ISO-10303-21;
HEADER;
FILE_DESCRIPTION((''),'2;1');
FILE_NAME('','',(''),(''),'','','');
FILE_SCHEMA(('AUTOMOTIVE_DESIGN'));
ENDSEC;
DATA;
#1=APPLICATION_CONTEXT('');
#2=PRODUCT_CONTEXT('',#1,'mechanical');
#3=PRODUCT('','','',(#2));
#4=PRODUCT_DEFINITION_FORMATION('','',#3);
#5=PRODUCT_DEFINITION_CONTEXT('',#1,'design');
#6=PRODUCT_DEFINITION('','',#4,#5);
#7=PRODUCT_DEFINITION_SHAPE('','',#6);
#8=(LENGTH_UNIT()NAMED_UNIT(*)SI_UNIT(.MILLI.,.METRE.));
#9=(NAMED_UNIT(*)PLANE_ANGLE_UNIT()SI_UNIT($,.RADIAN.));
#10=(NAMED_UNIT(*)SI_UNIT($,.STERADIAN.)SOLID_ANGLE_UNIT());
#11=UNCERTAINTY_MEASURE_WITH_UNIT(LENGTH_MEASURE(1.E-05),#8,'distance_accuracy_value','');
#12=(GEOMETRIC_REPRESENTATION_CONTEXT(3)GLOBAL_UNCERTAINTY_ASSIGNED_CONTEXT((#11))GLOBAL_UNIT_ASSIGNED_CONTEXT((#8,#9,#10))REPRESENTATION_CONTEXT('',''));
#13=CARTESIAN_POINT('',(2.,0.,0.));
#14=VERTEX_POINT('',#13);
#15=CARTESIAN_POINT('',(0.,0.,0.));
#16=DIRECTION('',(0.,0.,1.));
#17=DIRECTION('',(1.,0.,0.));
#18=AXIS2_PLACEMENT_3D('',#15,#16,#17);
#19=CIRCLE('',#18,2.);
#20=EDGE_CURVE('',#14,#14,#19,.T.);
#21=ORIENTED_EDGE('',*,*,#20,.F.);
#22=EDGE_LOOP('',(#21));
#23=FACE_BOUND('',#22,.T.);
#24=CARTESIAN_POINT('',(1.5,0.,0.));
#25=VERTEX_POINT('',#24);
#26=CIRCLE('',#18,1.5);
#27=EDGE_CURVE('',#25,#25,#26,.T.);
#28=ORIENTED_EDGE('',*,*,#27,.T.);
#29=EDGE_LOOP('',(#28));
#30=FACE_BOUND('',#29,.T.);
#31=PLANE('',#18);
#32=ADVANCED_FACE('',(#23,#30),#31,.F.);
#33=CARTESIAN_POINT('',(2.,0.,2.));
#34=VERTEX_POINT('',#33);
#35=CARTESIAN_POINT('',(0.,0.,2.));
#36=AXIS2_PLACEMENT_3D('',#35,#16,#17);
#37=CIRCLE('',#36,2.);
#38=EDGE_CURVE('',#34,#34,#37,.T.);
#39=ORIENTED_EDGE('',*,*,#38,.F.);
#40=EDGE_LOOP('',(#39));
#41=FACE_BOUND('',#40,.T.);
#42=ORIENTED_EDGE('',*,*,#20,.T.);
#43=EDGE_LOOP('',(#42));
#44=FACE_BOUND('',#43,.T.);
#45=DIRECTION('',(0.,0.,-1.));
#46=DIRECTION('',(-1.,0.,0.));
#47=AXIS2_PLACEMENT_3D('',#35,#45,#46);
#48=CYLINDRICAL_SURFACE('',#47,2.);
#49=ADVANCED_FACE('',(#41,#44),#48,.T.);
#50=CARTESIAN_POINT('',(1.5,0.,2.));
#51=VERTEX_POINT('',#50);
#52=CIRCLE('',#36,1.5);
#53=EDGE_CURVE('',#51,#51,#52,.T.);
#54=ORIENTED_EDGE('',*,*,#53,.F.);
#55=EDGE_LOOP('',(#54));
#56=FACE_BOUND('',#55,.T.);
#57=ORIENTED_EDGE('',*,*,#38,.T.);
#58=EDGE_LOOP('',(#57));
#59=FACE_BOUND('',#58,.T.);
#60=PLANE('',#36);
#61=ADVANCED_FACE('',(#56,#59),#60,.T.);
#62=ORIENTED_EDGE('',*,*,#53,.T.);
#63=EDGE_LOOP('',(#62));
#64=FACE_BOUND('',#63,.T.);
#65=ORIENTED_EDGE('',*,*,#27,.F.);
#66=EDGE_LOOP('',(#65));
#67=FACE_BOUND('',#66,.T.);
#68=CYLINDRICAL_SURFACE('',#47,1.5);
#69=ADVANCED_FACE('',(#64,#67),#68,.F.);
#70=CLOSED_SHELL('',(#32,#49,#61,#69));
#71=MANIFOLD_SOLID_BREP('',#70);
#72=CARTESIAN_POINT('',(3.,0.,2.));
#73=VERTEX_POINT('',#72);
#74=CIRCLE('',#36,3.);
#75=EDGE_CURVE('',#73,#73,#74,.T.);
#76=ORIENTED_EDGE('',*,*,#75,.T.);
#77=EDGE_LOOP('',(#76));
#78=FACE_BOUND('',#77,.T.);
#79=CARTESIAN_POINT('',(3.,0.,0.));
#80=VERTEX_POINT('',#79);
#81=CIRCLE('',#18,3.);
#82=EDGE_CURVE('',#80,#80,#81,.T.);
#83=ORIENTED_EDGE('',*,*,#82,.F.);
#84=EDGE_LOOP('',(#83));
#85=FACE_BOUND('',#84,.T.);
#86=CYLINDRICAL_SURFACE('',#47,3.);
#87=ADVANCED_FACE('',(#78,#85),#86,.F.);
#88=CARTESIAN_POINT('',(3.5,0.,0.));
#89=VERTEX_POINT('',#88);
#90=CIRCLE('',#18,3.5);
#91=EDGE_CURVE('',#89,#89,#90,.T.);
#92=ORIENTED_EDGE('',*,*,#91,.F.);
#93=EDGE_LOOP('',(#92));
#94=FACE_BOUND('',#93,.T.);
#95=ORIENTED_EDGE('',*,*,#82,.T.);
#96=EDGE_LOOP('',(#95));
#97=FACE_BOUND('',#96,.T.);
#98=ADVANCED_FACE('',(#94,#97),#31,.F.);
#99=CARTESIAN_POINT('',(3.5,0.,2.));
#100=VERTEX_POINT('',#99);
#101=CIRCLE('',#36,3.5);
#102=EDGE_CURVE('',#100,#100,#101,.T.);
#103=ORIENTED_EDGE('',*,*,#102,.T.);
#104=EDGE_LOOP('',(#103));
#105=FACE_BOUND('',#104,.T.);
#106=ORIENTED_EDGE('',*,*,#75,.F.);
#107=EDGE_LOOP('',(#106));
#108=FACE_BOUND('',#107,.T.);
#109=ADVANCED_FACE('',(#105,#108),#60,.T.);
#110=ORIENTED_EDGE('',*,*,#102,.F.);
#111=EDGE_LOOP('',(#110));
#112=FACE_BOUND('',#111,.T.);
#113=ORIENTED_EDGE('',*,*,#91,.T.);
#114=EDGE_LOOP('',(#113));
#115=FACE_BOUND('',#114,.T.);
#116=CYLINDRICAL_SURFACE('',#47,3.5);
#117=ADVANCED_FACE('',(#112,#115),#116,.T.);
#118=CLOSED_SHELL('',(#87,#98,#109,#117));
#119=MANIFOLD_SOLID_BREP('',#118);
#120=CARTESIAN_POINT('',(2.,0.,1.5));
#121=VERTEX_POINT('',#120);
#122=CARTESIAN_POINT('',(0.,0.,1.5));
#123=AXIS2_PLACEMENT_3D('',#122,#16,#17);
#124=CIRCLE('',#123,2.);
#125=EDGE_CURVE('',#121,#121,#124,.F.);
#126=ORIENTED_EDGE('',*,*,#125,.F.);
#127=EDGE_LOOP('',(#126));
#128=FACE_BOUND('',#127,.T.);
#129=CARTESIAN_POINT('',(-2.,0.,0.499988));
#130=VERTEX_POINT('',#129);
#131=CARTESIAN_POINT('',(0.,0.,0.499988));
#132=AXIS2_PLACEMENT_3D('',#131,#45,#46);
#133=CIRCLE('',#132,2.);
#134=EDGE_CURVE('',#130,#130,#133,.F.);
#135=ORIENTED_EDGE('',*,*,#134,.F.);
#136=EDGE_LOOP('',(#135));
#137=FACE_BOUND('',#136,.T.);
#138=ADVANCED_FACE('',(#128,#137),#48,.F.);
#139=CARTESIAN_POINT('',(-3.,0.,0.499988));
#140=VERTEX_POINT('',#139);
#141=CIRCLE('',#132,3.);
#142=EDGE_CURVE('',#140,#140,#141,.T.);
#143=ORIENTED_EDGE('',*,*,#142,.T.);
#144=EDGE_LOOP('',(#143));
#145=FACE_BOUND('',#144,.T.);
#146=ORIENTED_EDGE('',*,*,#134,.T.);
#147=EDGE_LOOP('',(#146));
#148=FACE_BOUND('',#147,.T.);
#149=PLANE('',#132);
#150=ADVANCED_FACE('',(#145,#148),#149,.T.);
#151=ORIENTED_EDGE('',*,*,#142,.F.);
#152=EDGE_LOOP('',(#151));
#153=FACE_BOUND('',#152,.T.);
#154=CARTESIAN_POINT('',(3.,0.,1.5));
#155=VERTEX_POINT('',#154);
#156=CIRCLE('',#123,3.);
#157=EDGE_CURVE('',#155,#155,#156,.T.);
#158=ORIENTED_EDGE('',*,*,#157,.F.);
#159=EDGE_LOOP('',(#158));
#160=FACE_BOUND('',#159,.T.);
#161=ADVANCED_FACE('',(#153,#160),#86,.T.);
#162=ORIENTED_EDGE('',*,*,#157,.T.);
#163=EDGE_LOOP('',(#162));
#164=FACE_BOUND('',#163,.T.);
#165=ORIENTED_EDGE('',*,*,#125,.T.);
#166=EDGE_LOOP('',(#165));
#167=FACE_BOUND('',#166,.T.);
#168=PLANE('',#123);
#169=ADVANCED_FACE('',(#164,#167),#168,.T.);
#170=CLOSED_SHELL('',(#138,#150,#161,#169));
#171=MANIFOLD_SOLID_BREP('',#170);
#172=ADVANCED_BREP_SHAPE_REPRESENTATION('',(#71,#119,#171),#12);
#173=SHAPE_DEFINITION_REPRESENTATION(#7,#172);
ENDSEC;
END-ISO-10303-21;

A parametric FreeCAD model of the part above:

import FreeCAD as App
import Part
import Sketcher
Q = App.Units.Quantity

doc = App.newDocument("Part")
body = doc.addObject("PartDesign::Body", "Body")

# Sketch on XY plane
sketch1 = doc.addObject("Sketcher::SketchObject", "Sketch")
body.addObject(sketch1)
sketch1.AttachmentSupport = (doc.XY_Plane, [""])
sketch1.MapMode = "FlatFace"
sketch1.addGeometry([
    Part.Circle(App.Vector(0, 0, 0), App.Vector(0, 0, 1), 3.5),
    Part.Circle(App.Vector(0, 0, 0), App.Vector(0, 0, 1), 3),
], False)
sketch1.addConstraint([
    Sketcher.Constraint("Coincident", 0, 3, -1, 1),
    Sketcher.Constraint("Coincident", 1, 3, -1, 1),
    Sketcher.Constraint("Diameter", 0, Q("7 mm")),
    Sketcher.Constraint("Diameter", 1, Q("6 mm")),
])
pad1 = doc.addObject("PartDesign::Pad", "Pad")
body.addObject(pad1)
pad1.Profile = sketch1
pad1.Length = 2
body2 = doc.addObject("PartDesign::Body", "Body001")

# Sketch on XY plane
sketch2 = doc.addObject("Sketcher::SketchObject", "Sketch001")
body2.addObject(sketch2)
sketch2.AttachmentSupport = (doc.getObject("XY_Plane001"), [""])
sketch2.MapMode = "FlatFace"
sketch2.addGeometry([
    Part.Circle(App.Vector(0, 0, 0), App.Vector(0, 0, 1), 2),
    Part.Circle(App.Vector(0, 0, 0), App.Vector(0, 0, 1), 1.5),
], False)
sketch2.addConstraint([
    Sketcher.Constraint("Coincident", 0, 3, -1, 1),
    Sketcher.Constraint("Coincident", 1, 3, -1, 1),
    Sketcher.Constraint("Diameter", 0, Q("4 mm")),
    Sketcher.Constraint("Diameter", 1, Q("3 mm")),
])
pad2 = doc.addObject("PartDesign::Pad", "Pad001")
body2.addObject(pad2)
pad2.Profile = sketch2
pad2.Length = 2
body3 = doc.addObject("PartDesign::Body", "Body002")

# Sketch on XY plane
sketch3 = doc.addObject("Sketcher::SketchObject", "Sketch002")
body3.addObject(sketch3)
sketch3.AttachmentSupport = (doc.getObject("XY_Plane002"), [""])
sketch3.MapMode = "FlatFace"
sketch3.AttachmentOffset = App.Placement(App.Vector(0, 0, -0.000012), App.Rotation())
sketch3.addGeometry([
    Part.Circle(App.Vector(0, 0, 0), App.Vector(0, 0, 1), 3),
    Part.Circle(App.Vector(0, 0, 0), App.Vector(0, 0, 1), 2),
], False)
sketch3.addConstraint([
    Sketcher.Constraint("Coincident", 0, 3, -1, 1),
    Sketcher.Constraint("Coincident", 1, 3, -1, 1),
    Sketcher.Constraint("Diameter", 0, Q("6 mm")),
    Sketcher.Constraint("Diameter", 1, Q("4 mm")),
])
pad3 = doc.addObject("PartDesign::Pad", "Pad002")
body3.addObject(pad3)
pad3.Profile = sketch3
pad3.Length = 2.000012

# Sketch on XY plane
sketch4 = doc.addObject("Sketcher::SketchObject", "Sketch003")
body3.addObject(sketch4)
sketch4.AttachmentSupport = (doc.getObject("XY_Plane002"), [""])
sketch4.MapMode = "FlatFace"
sketch4.AttachmentOffset = App.Placement(App.Vector(0, 0, -0.000012), App.Rotation())
sketch4.addGeometry([
    Part.Circle(App.Vector(0, 0, 0), App.Vector(0, 0, 1), 3),
    Part.Circle(App.Vector(0, 0, 0), App.Vector(0, 0, 1), 2),
], False)
sketch4.addConstraint([
    Sketcher.Constraint("Coincident", 0, 3, -1, 1),
    Sketcher.Constraint("Coincident", 1, 3, -1, 1),
    Sketcher.Constraint("Diameter", 0, Q("6 mm")),
    Sketcher.Constraint("Diameter", 1, Q("4 mm")),
])
pocket1 = doc.addObject("PartDesign::Pocket", "Pocket")
body3.addObject(pocket1)
pocket1.Profile = sketch4
pocket1.Length = 0.5
pocket1.Reversed = True

# Sketch on XY plane
sketch5 = doc.addObject("Sketcher::SketchObject", "Sketch004")
body3.addObject(sketch5)
sketch5.AttachmentSupport = (doc.getObject("XY_Plane002"), [""])
sketch5.MapMode = "FlatFace"
sketch5.AttachmentOffset = App.Placement(App.Vector(0, 0, 1.5), App.Rotation())
sketch5.addGeometry([
    Part.Circle(App.Vector(0, 0, 0), App.Vector(0, 0, 1), 3),
    Part.Circle(App.Vector(0, 0, 0), App.Vector(0, 0, 1), 2),
], False)
sketch5.addConstraint([
    Sketcher.Constraint("Coincident", 0, 3, -1, 1),
    Sketcher.Constraint("Coincident", 1, 3, -1, 1),
    Sketcher.Constraint("Diameter", 0, Q("6 mm")),
    Sketcher.Constraint("Diameter", 1, Q("4 mm")),
])
pocket2 = doc.addObject("PartDesign::Pocket", "Pocket001")
body3.addObject(pocket2)
pocket2.Profile = sketch5
pocket2.Length = 0.5
pocket2.Reversed = True

doc.recompute()
